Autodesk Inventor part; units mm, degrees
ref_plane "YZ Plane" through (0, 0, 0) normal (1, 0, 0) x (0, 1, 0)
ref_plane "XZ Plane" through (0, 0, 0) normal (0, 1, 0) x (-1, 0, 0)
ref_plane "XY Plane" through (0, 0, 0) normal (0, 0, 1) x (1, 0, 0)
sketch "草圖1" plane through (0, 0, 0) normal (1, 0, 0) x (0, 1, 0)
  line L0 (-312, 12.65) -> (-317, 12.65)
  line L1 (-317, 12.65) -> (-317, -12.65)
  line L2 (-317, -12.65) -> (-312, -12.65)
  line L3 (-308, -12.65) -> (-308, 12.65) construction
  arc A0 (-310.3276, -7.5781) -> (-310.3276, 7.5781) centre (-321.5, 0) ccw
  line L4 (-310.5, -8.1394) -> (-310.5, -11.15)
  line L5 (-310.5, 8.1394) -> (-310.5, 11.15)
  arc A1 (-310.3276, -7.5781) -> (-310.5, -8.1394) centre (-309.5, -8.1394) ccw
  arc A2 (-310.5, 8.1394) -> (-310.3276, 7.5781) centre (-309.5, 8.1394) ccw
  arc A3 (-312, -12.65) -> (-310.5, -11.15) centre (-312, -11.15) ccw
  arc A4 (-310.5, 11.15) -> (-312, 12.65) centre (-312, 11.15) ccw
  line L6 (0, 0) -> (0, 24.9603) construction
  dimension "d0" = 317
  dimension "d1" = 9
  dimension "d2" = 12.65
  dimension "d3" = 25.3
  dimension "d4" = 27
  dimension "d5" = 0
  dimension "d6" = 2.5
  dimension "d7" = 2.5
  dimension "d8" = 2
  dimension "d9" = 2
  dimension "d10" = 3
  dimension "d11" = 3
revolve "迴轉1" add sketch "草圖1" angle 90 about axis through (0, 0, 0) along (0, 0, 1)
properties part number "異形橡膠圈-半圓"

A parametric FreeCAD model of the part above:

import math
import FreeCAD as App
import Part
import Sketcher

doc = App.newDocument("Part")
params = doc.addObject("Spreadsheet::Sheet", "Params")
for row, (alias, value) in enumerate([
    ("sketch1_radius", "1 mm"),
    ("sketch1_radius2", "1.5 mm"),
    ("sketch1_radius3", "13.5 mm"),
    ("sketch1_height", "25.3 mm"),
    ("sketch1_width", "5 mm"),
    ("revolution_angle", "90 deg"),
], start=1):
    params.set(f"A{row}", alias)
    params.set(f"B{row}", "=" + value)
    params.setAlias(f"B{row}", alias)

body = doc.addObject("PartDesign::Body", "Body")

# Sketch on YZ plane
sketch1 = body.newObject("Sketcher::SketchObject", "Sketch")
sketch1.AttachmentSupport = (doc.getObject("YZ_Plane"), [""])
sketch1.MapMode = "FlatFace"
sketch1.addGeometry(Part.ArcOfCircle(Part.Circle(App.Vector(-312, 11.2, 0), App.Vector(0, 0, 1), 1.5), math.radians(0), math.radians(90)), False)
sketch1.addGeometry(Part.LineSegment(App.Vector(-312, 12.7, 0), App.Vector(-317, 12.7, 0)), False)
sketch1.addGeometry(Part.LineSegment(App.Vector(-317, 12.7, 0), App.Vector(-317, -12.7, 0)), False)
sketch1.addGeometry(Part.LineSegment(App.Vector(-317, -12.7, 0), App.Vector(-312, -12.7, 0)), False)
sketch1.addGeometry(Part.ArcOfCircle(Part.Circle(App.Vector(-312, -11.2, 0), App.Vector(0, 0, 1), 1.5), math.radians(-90), math.radians(0)), False)
sketch1.addGeometry(Part.LineSegment(App.Vector(-310.5, -11.2, 0), App.Vector(-310.5, -8.1, 0)), False)
sketch1.addGeometry(Part.ArcOfCircle(Part.Circle(App.Vector(-309.5, -8.1, 0), App.Vector(0, 0, 1), 1), math.radians(146), math.radians(180)), False)
sketch1.addGeometry(Part.ArcOfCircle(Part.Circle(App.Vector(-321.5, 0, 0), App.Vector(0, 0, 1), 13.5), math.radians(-34), math.radians(34)), False)
sketch1.addGeometry(Part.ArcOfCircle(Part.Circle(App.Vector(-309.5, 8.1, 0), App.Vector(0, 0, 1), 1), math.radians(180), math.radians(214)), False)
sketch1.addGeometry(Part.LineSegment(App.Vector(-310.5, 8.1, 0), App.Vector(-310.5, 11.2, 0)), False)
sketch1.addConstraint(Sketcher.Constraint("Tangent", 0, 2, 1, 1))
sketch1.addConstraint(Sketcher.Constraint("Coincident", 1, 2, 2, 1))
sketch1.addConstraint(Sketcher.Constraint("Coincident", 2, 2, 3, 1))
sketch1.addConstraint(Sketcher.Constraint("Tangent", 3, 2, 4, 1))
sketch1.addConstraint(Sketcher.Constraint("Tangent", 4, 2, 5, 1))
sketch1.addConstraint(Sketcher.Constraint("Tangent", 5, 2, 6, 2))
sketch1.addConstraint(Sketcher.Constraint("Tangent", 6, 1, 7, 1))
sketch1.addConstraint(Sketcher.Constraint("Tangent", 7, 2, 8, 2))
sketch1.addConstraint(Sketcher.Constraint("Tangent", 8, 1, 9, 1))
sketch1.addConstraint(Sketcher.Constraint("Tangent", 9, 2, 0, 1))
sketch1.addConstraint(Sketcher.Constraint("Horizontal", 1))
sketch1.addConstraint(Sketcher.Constraint("Vertical", 2))
sketch1.addConstraint(Sketcher.Constraint("Horizontal", 3))
sketch1.addConstraint(Sketcher.Constraint("Vertical", 5))
sketch1.addConstraint(Sketcher.Constraint("Vertical", 9))
sketch1.addConstraint(Sketcher.Constraint("Equal", 0, 4))
sketch1.addConstraint(Sketcher.Constraint("Equal", 6, 8))
sketch1.addConstraint(Sketcher.Constraint("Symmetric", 0, 3, 4, 3, -1))
sketch1.addConstraint(Sketcher.Constraint("PointOnObject", 7, 3, -1))
sketch1.addConstraint(Sketcher.Constraint("Radius", 6, 1.0))
sketch1.addConstraint(Sketcher.Constraint("Radius", 0, 1.5))
sketch1.addConstraint(Sketcher.Constraint("Radius", 7, 13.5))
sketch1.addConstraint(Sketcher.Constraint("DistanceY", 2, 2, 2, 1, 25.3))
sketch1.addConstraint(Sketcher.Constraint("DistanceX", 1, 2, -1, 1, 317.0))
sketch1.addConstraint(Sketcher.Constraint("DistanceX", 1, 2, 1, 1, 5.0))
sketch1.addConstraint(Sketcher.Constraint("DistanceX", 7, 3, 6, 3, 12.0))
sketch1.setExpression("Constraints[19]", "Params.sketch1_radius")
sketch1.setExpression("Constraints[20]", "Params.sketch1_radius2")
sketch1.setExpression("Constraints[21]", "Params.sketch1_radius3")
sketch1.setExpression("Constraints[22]", "Params.sketch1_height")
sketch1.setExpression("Constraints[24]", "Params.sketch1_width")
revolution = body.newObject("PartDesign::Revolution", "Revolution")
revolution.Profile = sketch1
revolution.ReferenceAxis = (sketch1, ["V_Axis"])
revolution.setExpression("Angle", "Params.revolution_angle")

doc.recompute()
